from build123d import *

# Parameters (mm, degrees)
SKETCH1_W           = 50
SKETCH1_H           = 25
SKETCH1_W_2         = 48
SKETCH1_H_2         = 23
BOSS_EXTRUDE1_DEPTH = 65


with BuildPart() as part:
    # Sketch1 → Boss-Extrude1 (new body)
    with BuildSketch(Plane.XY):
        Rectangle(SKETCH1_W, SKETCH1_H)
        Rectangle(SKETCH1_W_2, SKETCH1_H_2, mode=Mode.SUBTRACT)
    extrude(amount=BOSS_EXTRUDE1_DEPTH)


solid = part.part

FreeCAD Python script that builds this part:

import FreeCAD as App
import Part
import Sketcher


def add_polygon(sketch, points):
    """Adds a closed chain of lines whose ends are joined by coincident constraints."""
    first, n = sketch.GeometryCount, len(points)
    for a, b in zip(points, points[1:] + points[:1]):
        sketch.addGeometry(Part.LineSegment(App.Vector(*a, 0), App.Vector(*b, 0)), False)
    for i in range(n):
        sketch.addConstraint(Sketcher.Constraint("Coincident", first + i, 2, first + (i + 1) % n, 1))

doc = App.newDocument("Part")
params = doc.addObject("Spreadsheet::Sheet", "Params")
for row, (alias, value) in enumerate([
    ("sketch1_width", "50 mm"),
    ("sketch1_width2", "48 mm"),
    ("sketch1_height", "25 mm"),
    ("sketch1_height2", "23 mm"),
    ("pad1_length", "65 mm"),
], start=1):
    params.set(f"A{row}", alias)
    params.set(f"B{row}", "=" + value)
    params.setAlias(f"B{row}", alias)

body = doc.addObject("PartDesign::Body", "Body")

# Sketch on XY plane
sketch1 = body.newObject("Sketcher::SketchObject", "Sketch")
sketch1.AttachmentSupport = (doc.getObject("XY_Plane"), [""])
sketch1.MapMode = "FlatFace"
add_polygon(sketch1, [(-25, 12.5), (-25, -12.5), (25, -12.5), (25, 12.5)])  # lines 0-3
add_polygon(sketch1, [(24, -11.5), (-24, -11.5), (-24, 11.5), (24, 11.5)])  # lines 4-7
sketch1.addConstraint(Sketcher.Constraint("Vertical", 0))
sketch1.addConstraint(Sketcher.Constraint("Horizontal", 1))
sketch1.addConstraint(Sketcher.Constraint("Vertical", 2))
sketch1.addConstraint(Sketcher.Constraint("Horizontal", 3))
sketch1.addConstraint(Sketcher.Constraint("Horizontal", 4))
sketch1.addConstraint(Sketcher.Constraint("Vertical", 5))
sketch1.addConstraint(Sketcher.Constraint("Horizontal", 6))
sketch1.addConstraint(Sketcher.Constraint("Vertical", 7))
sketch1.addConstraint(Sketcher.Constraint("Symmetric", 0, 2, 2, 2, -1, 1))
sketch1.addConstraint(Sketcher.Constraint("Symmetric", 4, 2, 6, 2, -1, 1))
sketch1.addConstraint(Sketcher.Constraint("DistanceX", 1, 1, 1, 2, 50.0))
sketch1.addConstraint(Sketcher.Constraint("DistanceX", 4, 2, 4, 1, 48.0))
sketch1.addConstraint(Sketcher.Constraint("DistanceY", 0, 2, 0, 1, 25.0))
sketch1.addConstraint(Sketcher.Constraint("DistanceY", 5, 1, 5, 2, 23.0))
sketch1.setExpression("Constraints[18]", "Params.sketch1_width")
sketch1.setExpression("Constraints[19]", "Params.sketch1_width2")
sketch1.setExpression("Constraints[20]", "Params.sketch1_height")
sketch1.setExpression("Constraints[21]", "Params.sketch1_height2")
pad1 = body.newObject("PartDesign::Pad", "Pad")
pad1.Profile = sketch1
pad1.setExpression("Length", "Params.pad1_length")

doc.recompute()
